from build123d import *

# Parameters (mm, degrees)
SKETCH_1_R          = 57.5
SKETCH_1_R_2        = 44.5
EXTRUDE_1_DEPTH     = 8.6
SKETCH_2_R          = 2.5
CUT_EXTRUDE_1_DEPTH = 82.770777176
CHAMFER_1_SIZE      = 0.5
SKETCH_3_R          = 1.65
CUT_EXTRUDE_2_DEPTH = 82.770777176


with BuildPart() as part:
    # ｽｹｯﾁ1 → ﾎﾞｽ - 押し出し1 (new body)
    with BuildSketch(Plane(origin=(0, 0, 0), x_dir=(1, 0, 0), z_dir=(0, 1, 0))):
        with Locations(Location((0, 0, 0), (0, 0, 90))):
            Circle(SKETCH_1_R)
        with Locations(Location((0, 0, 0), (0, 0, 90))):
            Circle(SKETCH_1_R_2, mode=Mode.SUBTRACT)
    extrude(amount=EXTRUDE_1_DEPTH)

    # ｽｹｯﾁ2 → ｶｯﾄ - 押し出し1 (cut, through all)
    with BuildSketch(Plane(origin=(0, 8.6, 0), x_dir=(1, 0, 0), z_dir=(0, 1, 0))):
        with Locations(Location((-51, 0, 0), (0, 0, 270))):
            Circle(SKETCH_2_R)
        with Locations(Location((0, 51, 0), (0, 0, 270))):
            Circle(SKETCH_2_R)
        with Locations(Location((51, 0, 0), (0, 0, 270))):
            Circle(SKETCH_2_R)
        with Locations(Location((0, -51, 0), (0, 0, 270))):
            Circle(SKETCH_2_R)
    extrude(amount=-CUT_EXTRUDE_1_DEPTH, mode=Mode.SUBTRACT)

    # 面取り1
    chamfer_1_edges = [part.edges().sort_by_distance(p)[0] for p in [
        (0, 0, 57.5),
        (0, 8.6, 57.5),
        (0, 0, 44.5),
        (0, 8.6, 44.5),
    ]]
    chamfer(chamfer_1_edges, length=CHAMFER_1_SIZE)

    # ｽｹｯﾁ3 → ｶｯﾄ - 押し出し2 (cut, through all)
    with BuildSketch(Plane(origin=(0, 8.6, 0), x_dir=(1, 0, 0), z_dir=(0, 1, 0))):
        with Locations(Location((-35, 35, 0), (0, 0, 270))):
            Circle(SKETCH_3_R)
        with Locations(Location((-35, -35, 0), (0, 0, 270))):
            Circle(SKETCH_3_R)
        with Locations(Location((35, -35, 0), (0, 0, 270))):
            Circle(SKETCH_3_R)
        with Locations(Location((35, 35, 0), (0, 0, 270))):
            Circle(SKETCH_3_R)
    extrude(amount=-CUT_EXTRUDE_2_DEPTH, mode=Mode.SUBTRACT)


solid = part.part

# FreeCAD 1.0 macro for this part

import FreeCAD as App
import Part
import Sketcher

V = App.Vector


def edges_at(feature, points):
    """Names of the edges that pass closest to the given points."""
    edges = feature.Shape.Edges
    near = lambda p: min(range(len(edges)), key=lambda i: edges[i].distToShape(Part.Vertex(*p))[0])
    return sorted({f"Edge{near(p) + 1}" for p in points})

doc = App.newDocument("Part")
body = doc.addObject("PartDesign::Body", "Body")

# Sketch on XZ plane
sketch1 = doc.addObject("Sketcher::SketchObject", "Sketch")
body.addObject(sketch1)
sketch1.AttachmentSupport = (doc.XZ_Plane, [""])
sketch1.MapMode = "FlatFace"
sketch1.addGeometry([
    Part.Circle(V(0, 0, 0), V(0, 0, 1), 58),
    Part.Circle(V(0, 0, 0), V(0, 0, 1), 44),
], False)
sketch1.addConstraint([
    Sketcher.Constraint("Coincident", 0, 3, -1, 1),
    Sketcher.Constraint("Coincident", 1, 3, -1, 1),
    Sketcher.Constraint("Diameter", 0, 115.0),
    Sketcher.Constraint("Diameter", 1, 89.0),
])
pad1 = doc.addObject("PartDesign::Pad", "Pad")
body.addObject(pad1)
pad1.Profile = sketch1
pad1.Length = 8.6
pad1.Reversed = True

# Sketch on XZ plane
sketch2 = doc.addObject("Sketcher::SketchObject", "Sketch001")
body.addObject(sketch2)
sketch2.AttachmentSupport = (doc.XZ_Plane, [""])
sketch2.MapMode = "FlatFace"
sketch2.AttachmentOffset = App.Placement(V(0, 0, -8.6), App.Rotation())
sketch2.addGeometry([
    Part.Circle(V(-51, 0, 0), V(0, 0, 1), 2.5),
    Part.Circle(V(0, -51, 0), V(0, 0, 1), 2.5),
    Part.Circle(V(51, 0, 0), V(0, 0, 1), 2.5),
    Part.Circle(V(0, 51, 0), V(0, 0, 1), 2.5),
], False)
sketch2.addConstraint([
    Sketcher.Constraint("Equal", 0, 1),
    Sketcher.Constraint("Equal", 1, 2),
    Sketcher.Constraint("Equal", 2, 3),
    Sketcher.Constraint("Symmetric", 0, 3, 2, 3, -1, 1),
    Sketcher.Constraint("Symmetric", 1, 3, 3, 3, -1, 1),
    Sketcher.Constraint("PointOnObject", 0, 3, -1),
    Sketcher.Constraint("PointOnObject", 1, 3, -2),
    Sketcher.Constraint("Diameter", 0, 5.0),
    Sketcher.Constraint("DistanceX", 0, 3, -1, 1, 51.0),
    Sketcher.Constraint("DistanceY", 1, 3, -1, 1, 51.0),
])
pocket1 = doc.addObject("PartDesign::Pocket", "Pocket")
body.addObject(pocket1)
pocket1.Profile = sketch2
pocket1.Type = "ThroughAll"
pocket1.Reversed = True
doc.recompute()

chamfer = doc.addObject("PartDesign::Chamfer", "Chamfer")
body.addObject(chamfer)
chamfer.Base = (pocket1, edges_at(pocket1, [
    (0, 0, 57.5),
    (0, 8.6, 57.5),
    (0, 0, 44.5),
    (0, 8.6, 44.5),
]))
chamfer.Size = 0.5

# Sketch on XZ plane
sketch3 = doc.addObject("Sketcher::SketchObject", "Sketch002")
body.addObject(sketch3)
sketch3.AttachmentSupport = (doc.XZ_Plane, [""])
sketch3.MapMode = "FlatFace"
sketch3.AttachmentOffset = App.Placement(V(0, 0, -8.6), App.Rotation())
sketch3.addGeometry([
    Part.Circle(V(-35, -35, 0), V(0, 0, 1), 1.6),
    Part.Circle(V(-35, 35, 0), V(0, 0, 1), 1.6),
    Part.Circle(V(35, 35, 0), V(0, 0, 1), 1.6),
    Part.Circle(V(35, -35, 0), V(0, 0, 1), 1.6),
], False)
sketch3.addConstraint([
    Sketcher.Constraint("Equal", 0, 1),
    Sketcher.Constraint("Equal", 1, 2),
    Sketcher.Constraint("Equal", 2, 3),
    Sketcher.Constraint("Symmetric", 0, 3, 2, 3, -1, 1),
    Sketcher.Constraint("Symmetric", 1, 3, 3, 3, -1, 1),
    Sketcher.Constraint("Symmetric", 1, 3, 2, 3, -2),
    Sketcher.Constraint("Diameter", 0, 3.3),
    Sketcher.Constraint("DistanceX", 0, 3, -1, 1, 35.0),
    Sketcher.Constraint("DistanceY", 0, 3, -1, 1, 35.0),
])
pocket2 = doc.addObject("PartDesign::Pocket", "Pocket001")
body.addObject(pocket2)
pocket2.Profile = sketch3
pocket2.Type = "ThroughAll"
pocket2.Reversed = True

doc.recompute()
